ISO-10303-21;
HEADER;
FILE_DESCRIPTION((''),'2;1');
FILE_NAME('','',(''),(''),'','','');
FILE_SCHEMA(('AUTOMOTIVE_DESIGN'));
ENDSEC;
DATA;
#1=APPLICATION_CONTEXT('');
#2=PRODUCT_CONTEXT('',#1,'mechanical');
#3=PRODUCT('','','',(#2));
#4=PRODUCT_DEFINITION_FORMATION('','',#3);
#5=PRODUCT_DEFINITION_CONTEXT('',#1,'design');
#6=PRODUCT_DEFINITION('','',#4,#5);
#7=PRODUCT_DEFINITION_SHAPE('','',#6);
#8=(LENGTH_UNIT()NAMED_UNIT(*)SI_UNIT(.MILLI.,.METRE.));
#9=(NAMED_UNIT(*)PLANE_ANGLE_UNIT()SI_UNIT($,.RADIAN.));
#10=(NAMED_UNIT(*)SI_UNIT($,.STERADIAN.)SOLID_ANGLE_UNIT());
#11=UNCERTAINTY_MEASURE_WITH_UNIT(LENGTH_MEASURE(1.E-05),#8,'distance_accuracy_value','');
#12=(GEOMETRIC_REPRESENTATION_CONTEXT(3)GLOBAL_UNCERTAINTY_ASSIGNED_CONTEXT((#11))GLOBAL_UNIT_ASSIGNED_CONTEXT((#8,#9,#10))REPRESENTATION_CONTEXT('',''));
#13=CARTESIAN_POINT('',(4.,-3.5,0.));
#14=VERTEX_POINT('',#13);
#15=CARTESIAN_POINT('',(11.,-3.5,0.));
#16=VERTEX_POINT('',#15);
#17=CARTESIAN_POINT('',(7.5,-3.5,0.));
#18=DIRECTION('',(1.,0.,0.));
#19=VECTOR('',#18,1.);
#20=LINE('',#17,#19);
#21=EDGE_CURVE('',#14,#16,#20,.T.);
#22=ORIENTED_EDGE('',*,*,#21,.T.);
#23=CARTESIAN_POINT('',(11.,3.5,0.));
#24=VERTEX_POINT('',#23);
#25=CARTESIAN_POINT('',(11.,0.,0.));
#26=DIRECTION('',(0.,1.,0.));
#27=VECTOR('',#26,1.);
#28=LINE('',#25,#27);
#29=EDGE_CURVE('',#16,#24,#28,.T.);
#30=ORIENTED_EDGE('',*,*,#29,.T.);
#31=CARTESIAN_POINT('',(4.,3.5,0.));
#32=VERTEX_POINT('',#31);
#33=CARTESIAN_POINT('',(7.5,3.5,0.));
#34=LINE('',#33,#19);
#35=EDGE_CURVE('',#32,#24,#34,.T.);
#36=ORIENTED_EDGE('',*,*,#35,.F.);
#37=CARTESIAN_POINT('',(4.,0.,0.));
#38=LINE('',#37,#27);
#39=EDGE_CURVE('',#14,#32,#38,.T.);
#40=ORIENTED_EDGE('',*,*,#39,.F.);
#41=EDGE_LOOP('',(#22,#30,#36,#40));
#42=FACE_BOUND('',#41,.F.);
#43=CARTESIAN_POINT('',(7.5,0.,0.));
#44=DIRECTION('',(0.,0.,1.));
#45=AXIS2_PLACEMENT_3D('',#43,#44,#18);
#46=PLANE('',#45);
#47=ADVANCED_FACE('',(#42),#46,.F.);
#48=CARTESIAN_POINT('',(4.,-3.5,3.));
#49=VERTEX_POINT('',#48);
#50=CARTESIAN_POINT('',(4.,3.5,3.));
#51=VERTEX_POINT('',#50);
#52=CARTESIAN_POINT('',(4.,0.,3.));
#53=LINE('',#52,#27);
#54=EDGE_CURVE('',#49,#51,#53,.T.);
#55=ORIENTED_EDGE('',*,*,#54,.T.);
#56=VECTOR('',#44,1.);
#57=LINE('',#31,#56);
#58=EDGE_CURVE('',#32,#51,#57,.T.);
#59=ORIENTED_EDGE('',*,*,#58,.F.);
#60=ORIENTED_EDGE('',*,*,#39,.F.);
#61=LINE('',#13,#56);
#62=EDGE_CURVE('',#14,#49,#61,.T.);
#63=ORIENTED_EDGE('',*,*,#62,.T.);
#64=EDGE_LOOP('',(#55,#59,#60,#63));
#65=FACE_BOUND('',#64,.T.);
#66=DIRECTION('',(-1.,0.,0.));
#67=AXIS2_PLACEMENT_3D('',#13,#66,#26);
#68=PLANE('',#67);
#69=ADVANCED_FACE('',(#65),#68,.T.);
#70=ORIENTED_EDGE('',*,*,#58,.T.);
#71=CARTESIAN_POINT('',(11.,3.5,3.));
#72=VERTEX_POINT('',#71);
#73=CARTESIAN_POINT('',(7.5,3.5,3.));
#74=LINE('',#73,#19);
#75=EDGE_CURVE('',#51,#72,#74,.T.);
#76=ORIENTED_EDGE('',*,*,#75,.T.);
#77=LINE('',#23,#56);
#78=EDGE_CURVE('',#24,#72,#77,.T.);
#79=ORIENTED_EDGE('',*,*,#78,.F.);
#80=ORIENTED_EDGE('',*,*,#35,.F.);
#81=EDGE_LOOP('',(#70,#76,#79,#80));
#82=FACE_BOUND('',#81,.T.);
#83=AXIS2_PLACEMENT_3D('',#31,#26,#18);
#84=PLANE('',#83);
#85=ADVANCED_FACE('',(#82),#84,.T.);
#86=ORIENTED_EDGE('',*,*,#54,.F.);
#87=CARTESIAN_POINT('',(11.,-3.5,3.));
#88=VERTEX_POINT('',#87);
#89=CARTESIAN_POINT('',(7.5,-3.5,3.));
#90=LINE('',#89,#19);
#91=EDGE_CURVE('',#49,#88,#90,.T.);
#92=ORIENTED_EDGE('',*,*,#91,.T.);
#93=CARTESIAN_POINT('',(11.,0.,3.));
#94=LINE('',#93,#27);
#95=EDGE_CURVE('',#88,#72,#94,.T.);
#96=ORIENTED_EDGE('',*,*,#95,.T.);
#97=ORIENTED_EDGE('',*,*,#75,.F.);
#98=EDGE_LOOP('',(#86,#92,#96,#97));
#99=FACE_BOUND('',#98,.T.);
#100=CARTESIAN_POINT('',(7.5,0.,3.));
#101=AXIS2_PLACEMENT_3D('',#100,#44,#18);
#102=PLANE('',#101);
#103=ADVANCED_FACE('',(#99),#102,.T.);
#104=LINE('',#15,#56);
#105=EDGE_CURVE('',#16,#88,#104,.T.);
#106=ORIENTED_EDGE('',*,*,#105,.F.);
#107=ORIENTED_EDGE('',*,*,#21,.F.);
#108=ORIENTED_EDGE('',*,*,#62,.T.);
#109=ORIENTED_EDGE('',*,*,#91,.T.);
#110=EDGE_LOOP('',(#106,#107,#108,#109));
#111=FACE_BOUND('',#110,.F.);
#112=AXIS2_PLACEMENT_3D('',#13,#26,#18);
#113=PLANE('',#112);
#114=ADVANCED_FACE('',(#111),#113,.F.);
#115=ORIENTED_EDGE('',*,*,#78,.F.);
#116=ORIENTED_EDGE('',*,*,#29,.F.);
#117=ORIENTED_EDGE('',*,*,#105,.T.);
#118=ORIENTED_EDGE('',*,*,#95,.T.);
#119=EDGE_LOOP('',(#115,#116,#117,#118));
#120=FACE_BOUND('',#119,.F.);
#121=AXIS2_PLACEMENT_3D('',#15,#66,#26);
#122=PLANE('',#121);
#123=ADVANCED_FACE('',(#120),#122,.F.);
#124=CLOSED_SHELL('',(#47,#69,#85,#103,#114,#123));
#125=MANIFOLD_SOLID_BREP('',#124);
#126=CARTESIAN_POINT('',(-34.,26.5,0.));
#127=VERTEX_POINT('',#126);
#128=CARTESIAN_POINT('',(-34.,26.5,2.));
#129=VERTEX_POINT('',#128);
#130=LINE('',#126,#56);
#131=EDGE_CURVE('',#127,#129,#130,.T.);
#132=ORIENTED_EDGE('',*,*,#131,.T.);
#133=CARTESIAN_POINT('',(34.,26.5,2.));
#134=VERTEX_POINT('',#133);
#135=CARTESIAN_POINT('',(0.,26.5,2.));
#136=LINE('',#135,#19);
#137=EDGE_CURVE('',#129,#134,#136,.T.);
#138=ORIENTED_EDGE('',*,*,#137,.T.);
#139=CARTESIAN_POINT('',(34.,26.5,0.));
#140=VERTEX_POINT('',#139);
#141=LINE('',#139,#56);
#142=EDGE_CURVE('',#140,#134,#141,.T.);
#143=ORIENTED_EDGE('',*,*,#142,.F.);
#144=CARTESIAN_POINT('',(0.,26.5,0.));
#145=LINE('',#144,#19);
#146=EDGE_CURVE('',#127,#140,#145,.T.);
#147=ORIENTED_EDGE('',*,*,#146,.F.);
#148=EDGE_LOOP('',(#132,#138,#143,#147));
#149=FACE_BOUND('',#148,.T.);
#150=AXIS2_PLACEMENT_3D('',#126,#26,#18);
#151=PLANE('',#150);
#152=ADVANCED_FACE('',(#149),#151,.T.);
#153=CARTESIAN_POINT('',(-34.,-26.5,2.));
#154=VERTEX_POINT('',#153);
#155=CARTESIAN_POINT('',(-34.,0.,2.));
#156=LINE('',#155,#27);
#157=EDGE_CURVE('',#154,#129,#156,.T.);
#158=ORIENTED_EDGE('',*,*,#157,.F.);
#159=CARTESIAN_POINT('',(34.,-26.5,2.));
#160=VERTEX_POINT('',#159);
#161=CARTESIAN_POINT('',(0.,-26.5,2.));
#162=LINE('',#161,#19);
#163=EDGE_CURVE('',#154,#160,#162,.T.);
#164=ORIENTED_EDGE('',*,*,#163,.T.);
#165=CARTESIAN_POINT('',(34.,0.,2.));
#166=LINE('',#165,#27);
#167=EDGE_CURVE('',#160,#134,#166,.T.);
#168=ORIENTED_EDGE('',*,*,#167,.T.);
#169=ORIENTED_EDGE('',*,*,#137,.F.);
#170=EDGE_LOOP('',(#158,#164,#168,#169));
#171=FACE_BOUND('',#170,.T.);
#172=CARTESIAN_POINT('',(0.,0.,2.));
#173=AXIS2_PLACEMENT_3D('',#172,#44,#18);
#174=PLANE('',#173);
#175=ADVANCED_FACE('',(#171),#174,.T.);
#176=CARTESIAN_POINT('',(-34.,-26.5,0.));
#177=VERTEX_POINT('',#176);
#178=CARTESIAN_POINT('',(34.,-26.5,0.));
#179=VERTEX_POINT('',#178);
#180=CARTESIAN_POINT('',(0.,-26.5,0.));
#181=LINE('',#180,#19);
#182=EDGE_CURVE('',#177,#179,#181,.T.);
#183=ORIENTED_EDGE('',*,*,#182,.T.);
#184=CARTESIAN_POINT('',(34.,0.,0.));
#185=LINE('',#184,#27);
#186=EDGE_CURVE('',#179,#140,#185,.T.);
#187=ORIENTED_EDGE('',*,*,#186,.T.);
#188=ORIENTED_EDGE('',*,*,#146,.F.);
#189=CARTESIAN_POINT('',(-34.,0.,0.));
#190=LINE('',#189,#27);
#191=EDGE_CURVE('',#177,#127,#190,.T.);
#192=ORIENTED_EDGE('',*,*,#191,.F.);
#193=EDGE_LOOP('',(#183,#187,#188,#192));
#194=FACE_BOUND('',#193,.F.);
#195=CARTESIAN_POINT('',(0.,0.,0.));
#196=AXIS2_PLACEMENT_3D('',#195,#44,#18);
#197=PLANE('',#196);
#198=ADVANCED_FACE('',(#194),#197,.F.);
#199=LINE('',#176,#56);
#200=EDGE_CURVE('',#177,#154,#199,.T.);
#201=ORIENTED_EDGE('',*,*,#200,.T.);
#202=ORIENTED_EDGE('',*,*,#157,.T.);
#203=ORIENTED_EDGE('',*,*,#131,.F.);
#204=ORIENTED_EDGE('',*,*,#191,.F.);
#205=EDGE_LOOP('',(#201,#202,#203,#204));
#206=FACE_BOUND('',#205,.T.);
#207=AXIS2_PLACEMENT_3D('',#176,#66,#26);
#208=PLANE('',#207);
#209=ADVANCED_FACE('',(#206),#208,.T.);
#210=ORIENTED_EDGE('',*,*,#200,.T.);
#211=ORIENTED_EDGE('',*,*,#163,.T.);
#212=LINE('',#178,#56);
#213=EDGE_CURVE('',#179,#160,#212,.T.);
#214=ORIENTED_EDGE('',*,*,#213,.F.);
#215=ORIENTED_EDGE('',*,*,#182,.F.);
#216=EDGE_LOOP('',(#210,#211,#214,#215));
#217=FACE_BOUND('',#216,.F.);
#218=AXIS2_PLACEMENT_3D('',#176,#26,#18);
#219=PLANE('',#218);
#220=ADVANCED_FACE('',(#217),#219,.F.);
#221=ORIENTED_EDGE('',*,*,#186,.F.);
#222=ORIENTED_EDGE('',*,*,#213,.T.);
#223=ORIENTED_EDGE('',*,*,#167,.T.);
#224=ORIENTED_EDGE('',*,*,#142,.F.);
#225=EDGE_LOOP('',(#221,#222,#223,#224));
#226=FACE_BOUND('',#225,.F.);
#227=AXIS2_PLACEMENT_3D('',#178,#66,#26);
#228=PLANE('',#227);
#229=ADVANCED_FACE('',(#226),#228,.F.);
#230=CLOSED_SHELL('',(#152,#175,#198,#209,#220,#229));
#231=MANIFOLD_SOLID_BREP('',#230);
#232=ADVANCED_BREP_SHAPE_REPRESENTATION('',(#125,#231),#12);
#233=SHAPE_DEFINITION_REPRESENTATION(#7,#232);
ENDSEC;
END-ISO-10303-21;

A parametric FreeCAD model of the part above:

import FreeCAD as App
import Part
import Sketcher
Q = App.Units.Quantity


def add_polygon(sketch, points):
    """Adds a closed chain of lines whose ends are joined by coincident constraints."""
    first, n = sketch.GeometryCount, len(points)
    for a, b in zip(points, points[1:] + points[:1]):
        sketch.addGeometry(Part.LineSegment(App.Vector(*a, 0), App.Vector(*b, 0)), False)
    for i in range(n):
        sketch.addConstraint(Sketcher.Constraint("Coincident", first + i, 2, first + (i + 1) % n, 1))

doc = App.newDocument("Part")
params = doc.addObject("Spreadsheet::Sheet", "Params")
for row, (alias, value) in enumerate([
    ("sketch1_width", "68 mm"),
    ("sketch1_height", "53 mm"),
    ("pad1_length", "2 mm"),
    ("sketch2_width", "7 mm"),
    ("pad2_length", "3 mm"),
], start=1):
    params.set(f"A{row}", alias)
    params.set(f"B{row}", "=" + value)
    params.setAlias(f"B{row}", alias)

body = doc.addObject("PartDesign::Body", "Body")

# Sketch on XY plane
sketch1 = doc.addObject("Sketcher::SketchObject", "Sketch")
body.addObject(sketch1)
sketch1.AttachmentSupport = (doc.XY_Plane, [""])
sketch1.MapMode = "FlatFace"
add_polygon(sketch1, [(-34, 26), (-34, -26), (34, -26), (34, 26)])  # lines 0-3
sketch1.addConstraint(Sketcher.Constraint("Vertical", 0))
sketch1.addConstraint(Sketcher.Constraint("Horizontal", 1))
sketch1.addConstraint(Sketcher.Constraint("Vertical", 2))
sketch1.addConstraint(Sketcher.Constraint("Horizontal", 3))
sketch1.addConstraint(Sketcher.Constraint("Symmetric", 0, 2, 2, 2, -1, 1))
sketch1.addConstraint(Sketcher.Constraint("DistanceX", 1, 1, 1, 2, Q("68 mm")))
sketch1.addConstraint(Sketcher.Constraint("DistanceY", 0, 2, 0, 1, Q("53 mm")))
sketch1.setExpression("Constraints[9]", "Params.sketch1_width")
sketch1.setExpression("Constraints[10]", "Params.sketch1_height")
pad1 = doc.addObject("PartDesign::Pad", "Pad")
body.addObject(pad1)
pad1.Profile = sketch1
pad1.setExpression("Length", "Params.pad1_length")
body2 = doc.addObject("PartDesign::Body", "Body001")

# Sketch on XY plane
sketch2 = doc.addObject("Sketcher::SketchObject", "Sketch001")
body2.addObject(sketch2)
sketch2.AttachmentSupport = (doc.getObject("XY_Plane001"), [""])
sketch2.MapMode = "FlatFace"
add_polygon(sketch2, [(4, 4), (4, -4), (11, -4), (11, 4)])  # lines 0-3
sketch2.addConstraint(Sketcher.Constraint("Vertical", 0))
sketch2.addConstraint(Sketcher.Constraint("Horizontal", 1))
sketch2.addConstraint(Sketcher.Constraint("Vertical", 2))
sketch2.addConstraint(Sketcher.Constraint("Horizontal", 3))
sketch2.addConstraint(Sketcher.Constraint("Equal", 3, 0))
sketch2.addConstraint(Sketcher.Constraint("DistanceX", 1, 1, 1, 2, Q("7 mm")))
sketch2.addConstraint(Sketcher.Constraint("DistanceX", -1, 1, 0, 2, Q("4 mm")))
sketch2.addConstraint(Sketcher.Constraint("DistanceY", 0, 2, -1, 1, Q("3.5 mm")))
sketch2.setExpression("Constraints[9]", "Params.sketch2_width")
pad2 = doc.addObject("PartDesign::Pad", "Pad001")
body2.addObject(pad2)
pad2.Profile = sketch2
pad2.setExpression("Length", "Params.pad2_length")

doc.recompute()
